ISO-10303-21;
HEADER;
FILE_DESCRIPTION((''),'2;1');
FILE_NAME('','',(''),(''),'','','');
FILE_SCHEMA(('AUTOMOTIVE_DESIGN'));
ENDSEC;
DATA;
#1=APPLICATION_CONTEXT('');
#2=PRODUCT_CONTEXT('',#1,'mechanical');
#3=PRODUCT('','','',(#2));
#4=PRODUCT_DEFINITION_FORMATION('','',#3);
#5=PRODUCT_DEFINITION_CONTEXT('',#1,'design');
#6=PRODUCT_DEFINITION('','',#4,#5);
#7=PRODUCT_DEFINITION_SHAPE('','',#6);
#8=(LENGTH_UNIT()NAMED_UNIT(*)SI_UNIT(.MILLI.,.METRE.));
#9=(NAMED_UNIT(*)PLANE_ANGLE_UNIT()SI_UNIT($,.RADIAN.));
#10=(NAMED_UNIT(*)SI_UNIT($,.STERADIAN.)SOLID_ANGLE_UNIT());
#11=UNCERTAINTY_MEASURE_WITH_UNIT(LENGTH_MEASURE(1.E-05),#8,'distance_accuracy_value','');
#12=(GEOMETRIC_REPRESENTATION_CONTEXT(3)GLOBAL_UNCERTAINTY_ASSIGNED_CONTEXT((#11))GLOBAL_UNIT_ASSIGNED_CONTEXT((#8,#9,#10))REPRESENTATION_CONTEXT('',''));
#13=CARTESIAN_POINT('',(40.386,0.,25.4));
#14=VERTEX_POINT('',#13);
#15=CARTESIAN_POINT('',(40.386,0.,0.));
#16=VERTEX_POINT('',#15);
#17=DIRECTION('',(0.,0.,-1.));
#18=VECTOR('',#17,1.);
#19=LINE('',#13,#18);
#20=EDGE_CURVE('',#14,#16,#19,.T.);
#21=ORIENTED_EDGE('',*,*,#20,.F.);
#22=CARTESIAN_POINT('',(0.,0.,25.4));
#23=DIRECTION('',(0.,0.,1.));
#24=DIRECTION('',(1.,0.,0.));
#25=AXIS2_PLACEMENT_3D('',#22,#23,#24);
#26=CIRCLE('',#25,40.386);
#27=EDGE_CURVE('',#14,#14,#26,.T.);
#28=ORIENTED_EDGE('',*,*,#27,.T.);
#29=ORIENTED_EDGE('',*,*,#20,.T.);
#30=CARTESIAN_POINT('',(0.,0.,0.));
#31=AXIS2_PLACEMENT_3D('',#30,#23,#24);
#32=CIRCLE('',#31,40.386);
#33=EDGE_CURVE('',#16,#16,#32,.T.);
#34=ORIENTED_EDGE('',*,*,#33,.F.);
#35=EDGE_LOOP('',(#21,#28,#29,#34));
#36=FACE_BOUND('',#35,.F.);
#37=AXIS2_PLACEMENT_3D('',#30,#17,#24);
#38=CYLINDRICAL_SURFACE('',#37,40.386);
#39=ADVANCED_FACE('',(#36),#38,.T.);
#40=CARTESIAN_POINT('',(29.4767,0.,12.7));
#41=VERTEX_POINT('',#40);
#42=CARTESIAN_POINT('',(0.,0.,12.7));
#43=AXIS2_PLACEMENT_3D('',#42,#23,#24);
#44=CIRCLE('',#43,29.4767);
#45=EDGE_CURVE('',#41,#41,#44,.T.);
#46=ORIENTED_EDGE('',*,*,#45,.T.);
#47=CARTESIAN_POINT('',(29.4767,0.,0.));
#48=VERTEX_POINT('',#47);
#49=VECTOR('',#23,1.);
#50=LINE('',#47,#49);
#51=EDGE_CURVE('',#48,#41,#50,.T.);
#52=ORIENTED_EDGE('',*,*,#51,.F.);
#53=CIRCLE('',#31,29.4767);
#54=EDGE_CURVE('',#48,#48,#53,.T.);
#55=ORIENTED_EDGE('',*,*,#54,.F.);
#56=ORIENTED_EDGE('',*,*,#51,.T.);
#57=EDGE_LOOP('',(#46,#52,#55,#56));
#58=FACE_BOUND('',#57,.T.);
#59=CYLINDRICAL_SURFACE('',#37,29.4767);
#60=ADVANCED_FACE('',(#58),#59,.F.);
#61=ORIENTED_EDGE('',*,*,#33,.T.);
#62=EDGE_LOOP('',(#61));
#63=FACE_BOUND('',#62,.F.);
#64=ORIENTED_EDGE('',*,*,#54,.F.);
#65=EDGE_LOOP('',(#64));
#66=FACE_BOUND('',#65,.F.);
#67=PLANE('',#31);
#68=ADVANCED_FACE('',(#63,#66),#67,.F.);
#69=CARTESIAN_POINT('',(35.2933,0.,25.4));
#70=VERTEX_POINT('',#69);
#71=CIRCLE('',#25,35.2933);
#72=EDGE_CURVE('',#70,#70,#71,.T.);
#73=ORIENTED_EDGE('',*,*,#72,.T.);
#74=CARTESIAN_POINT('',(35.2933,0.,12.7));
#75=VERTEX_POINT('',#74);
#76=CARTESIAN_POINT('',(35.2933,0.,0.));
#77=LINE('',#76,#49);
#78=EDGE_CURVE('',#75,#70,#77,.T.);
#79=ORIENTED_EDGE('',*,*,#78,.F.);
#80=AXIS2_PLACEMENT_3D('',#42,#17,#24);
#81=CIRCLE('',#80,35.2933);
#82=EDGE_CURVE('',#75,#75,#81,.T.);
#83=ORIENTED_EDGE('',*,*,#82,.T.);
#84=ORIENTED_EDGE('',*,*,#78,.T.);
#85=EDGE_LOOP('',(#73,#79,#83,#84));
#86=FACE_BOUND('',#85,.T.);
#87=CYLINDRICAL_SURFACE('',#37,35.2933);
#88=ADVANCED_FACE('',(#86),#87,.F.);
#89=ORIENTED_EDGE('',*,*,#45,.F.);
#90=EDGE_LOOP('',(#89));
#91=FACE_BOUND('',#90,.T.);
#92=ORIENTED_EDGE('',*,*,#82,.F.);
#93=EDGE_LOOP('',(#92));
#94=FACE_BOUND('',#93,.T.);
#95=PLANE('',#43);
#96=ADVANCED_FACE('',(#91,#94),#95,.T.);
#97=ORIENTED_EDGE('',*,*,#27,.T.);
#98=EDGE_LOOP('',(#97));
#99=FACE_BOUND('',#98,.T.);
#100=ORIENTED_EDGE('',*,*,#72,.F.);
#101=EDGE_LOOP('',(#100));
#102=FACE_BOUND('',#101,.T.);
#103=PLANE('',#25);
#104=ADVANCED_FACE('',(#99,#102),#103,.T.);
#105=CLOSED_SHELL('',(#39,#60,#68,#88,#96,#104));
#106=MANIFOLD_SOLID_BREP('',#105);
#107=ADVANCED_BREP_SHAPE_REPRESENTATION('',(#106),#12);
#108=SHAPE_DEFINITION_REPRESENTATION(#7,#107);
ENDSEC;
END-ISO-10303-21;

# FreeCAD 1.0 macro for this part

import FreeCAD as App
import Part
import Sketcher

V = App.Vector
Q = App.Units.Quantity

doc = App.newDocument("Part")
body = doc.addObject("PartDesign::Body", "Body")

# Sketch on XY plane
sketch1 = body.newObject("Sketcher::SketchObject", "Sketch")
sketch1.AttachmentSupport = (doc.getObject("XY_Plane"), [""])
sketch1.MapMode = "FlatFace"
sketch1.addGeometry(Part.Circle(V(0, 0, 0), V(0, 0, 1), 40), False)
sketch1.addGeometry(Part.Circle(V(0, 0, 0), V(0, 0, 1), 29), False)
sketch1.addConstraint(Sketcher.Constraint("Coincident", 0, 3, -1, 1))
sketch1.addConstraint(Sketcher.Constraint("Coincident", 1, 3, -1, 1))
sketch1.addConstraint(Sketcher.Constraint("Diameter", 0, Q("3.18 in")))
sketch1.addConstraint(Sketcher.Constraint("Diameter", 1, Q("2.321 in")))
pad1 = body.newObject("PartDesign::Pad", "Pad")
pad1.Profile = sketch1
pad1.Length = Q("0.5 in")

# Sketch on XY plane
sketch2 = body.newObject("Sketcher::SketchObject", "Sketch001")
sketch2.AttachmentSupport = (doc.getObject("XY_Plane"), [""])
sketch2.MapMode = "FlatFace"
sketch2.addGeometry(Part.Circle(V(0, 0, 0), V(0, 0, 1), 40), False)
sketch2.addGeometry(Part.Circle(V(0, 0, 0), V(0, 0, 1), 35), False)
sketch2.addConstraint(Sketcher.Constraint("Coincident", 0, 3, -1, 1))
sketch2.addConstraint(Sketcher.Constraint("Coincident", 1, 3, -1, 1))
sketch2.addConstraint(Sketcher.Constraint("Diameter", 0, Q("3.18 in")))
sketch2.addConstraint(Sketcher.Constraint("Diameter", 1, Q("2.779 in")))
pad2 = body.newObject("PartDesign::Pad", "Pad001")
pad2.Profile = sketch2
pad2.Length = Q("1 in")

doc.recompute()
